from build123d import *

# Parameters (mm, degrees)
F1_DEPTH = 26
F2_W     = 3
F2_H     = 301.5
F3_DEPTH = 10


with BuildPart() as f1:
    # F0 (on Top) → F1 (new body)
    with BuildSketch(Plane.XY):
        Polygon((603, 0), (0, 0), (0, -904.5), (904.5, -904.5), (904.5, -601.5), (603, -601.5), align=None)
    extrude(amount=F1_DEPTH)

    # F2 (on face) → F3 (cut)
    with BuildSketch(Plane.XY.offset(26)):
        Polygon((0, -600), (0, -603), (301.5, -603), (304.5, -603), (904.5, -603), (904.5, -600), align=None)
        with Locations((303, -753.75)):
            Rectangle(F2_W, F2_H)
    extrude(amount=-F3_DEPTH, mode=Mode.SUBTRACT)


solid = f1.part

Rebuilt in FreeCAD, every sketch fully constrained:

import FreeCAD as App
import Part
import Sketcher
Q = App.Units.Quantity

doc = App.newDocument("Part")
body = doc.addObject("PartDesign::Body", "Body")

sketch1 = doc.addObject("Sketcher::SketchObject", "Sketch")
body.addObject(sketch1)
sketch1.AttachmentSupport = (doc.XY_Plane, [""])
sketch1.MapMode = "FlatFace"
sketch1.addGeometry([
    Part.LineSegment(App.Vector(603, 0, 0), App.Vector(0, 0, 0)),
    Part.LineSegment(App.Vector(0, 0, 0), App.Vector(0, -904, 0)),
    Part.LineSegment(App.Vector(0, -904, 0), App.Vector(904, -904, 0)),
    Part.LineSegment(App.Vector(904, -904, 0), App.Vector(904, -602, 0)),
    Part.LineSegment(App.Vector(904, -602, 0), App.Vector(603, -602, 0)),
    Part.LineSegment(App.Vector(603, -602, 0), App.Vector(603, 0, 0)),
], False)
sketch1.addConstraint([
    Sketcher.Constraint("Coincident", 0, 2, 1, 1),
    Sketcher.Constraint("Coincident", 1, 2, 2, 1),
    Sketcher.Constraint("Coincident", 2, 2, 3, 1),
    Sketcher.Constraint("Coincident", 3, 2, 4, 1),
    Sketcher.Constraint("Coincident", 4, 2, 5, 1),
    Sketcher.Constraint("Coincident", 5, 2, 0, 1),
    Sketcher.Constraint("Horizontal", 0),
    Sketcher.Constraint("Vertical", 1),
    Sketcher.Constraint("Horizontal", 2),
    Sketcher.Constraint("Vertical", 3),
    Sketcher.Constraint("Horizontal", 4),
    Sketcher.Constraint("Vertical", 5),
    Sketcher.Constraint("Coincident", 0, 2, -1, 1),
    Sketcher.Constraint("Equal", 2, 1),
    Sketcher.Constraint("DistanceX", 0, 2, 0, 1, Q("603 mm")),
    Sketcher.Constraint("DistanceY", 3, 1, 3, 2, Q("303 mm")),
    Sketcher.Constraint("DistanceX", 2, 1, 2, 2, Q("904.5 mm")),
])
pad1 = doc.addObject("PartDesign::Pad", "Pad")
body.addObject(pad1)
pad1.Profile = sketch1
pad1.Length = 26

sketch2 = doc.addObject("Sketcher::SketchObject", "Sketch001")
body.addObject(sketch2)
sketch2.AttachmentSupport = (doc.XY_Plane, [""])
sketch2.MapMode = "FlatFace"
sketch2.AttachmentOffset = App.Placement(App.Vector(0, 0, 26), App.Rotation())
sketch2.addGeometry([
    Part.LineSegment(App.Vector(0, -600, 0), App.Vector(0, -603, 0)),
    Part.LineSegment(App.Vector(0, -603, 0), App.Vector(301.5, -603, 0)),
    Part.LineSegment(App.Vector(301.5, -603, 0), App.Vector(301.5, -904.5, 0)),
    Part.LineSegment(App.Vector(301.5, -904.5, 0), App.Vector(304.5, -904.5, 0)),
    Part.LineSegment(App.Vector(304.5, -904.5, 0), App.Vector(304.5, -603, 0)),
    Part.LineSegment(App.Vector(304.5, -603, 0), App.Vector(904.5, -603, 0)),
    Part.LineSegment(App.Vector(904.5, -603, 0), App.Vector(904.5, -600, 0)),
    Part.LineSegment(App.Vector(904.5, -600, 0), App.Vector(0, -600, 0)),
], False)
sketch2.addConstraint([
    Sketcher.Constraint("Coincident", 0, 2, 1, 1),
    Sketcher.Constraint("Coincident", 1, 2, 2, 1),
    Sketcher.Constraint("Coincident", 2, 2, 3, 1),
    Sketcher.Constraint("Coincident", 3, 2, 4, 1),
    Sketcher.Constraint("Coincident", 4, 2, 5, 1),
    Sketcher.Constraint("Coincident", 5, 2, 6, 1),
    Sketcher.Constraint("Coincident", 6, 2, 7, 1),
    Sketcher.Constraint("Coincident", 7, 2, 0, 1),
    Sketcher.Constraint("Vertical", 0),
    Sketcher.Constraint("Horizontal", 1),
    Sketcher.Constraint("Vertical", 2),
    Sketcher.Constraint("Horizontal", 3),
    Sketcher.Constraint("Vertical", 4),
    Sketcher.Constraint("Horizontal", 5),
    Sketcher.Constraint("Vertical", 6),
    Sketcher.Constraint("Horizontal", 7),
    Sketcher.Constraint("PointOnObject", 0, 2, -2),
    Sketcher.Constraint("Horizontal", 1, 2, 4, 2),
    Sketcher.Constraint("Equal", 3, 0),
    Sketcher.Constraint("Equal", 1, 2),
    Sketcher.Constraint("DistanceX", 3, 1, 3, 2, Q("3 mm")),
    Sketcher.Constraint("DistanceX", 5, 1, 5, 2, Q("600 mm")),
    Sketcher.Constraint("DistanceX", 1, 1, 1, 2, Q("301.5 mm")),
    Sketcher.Constraint("DistanceY", 0, 2, -1, 1, Q("603 mm")),
])
pocket1 = doc.addObject("PartDesign::Pocket", "Pocket")
body.addObject(pocket1)
pocket1.Profile = sketch2
pocket1.Length = 10

doc.recompute()
